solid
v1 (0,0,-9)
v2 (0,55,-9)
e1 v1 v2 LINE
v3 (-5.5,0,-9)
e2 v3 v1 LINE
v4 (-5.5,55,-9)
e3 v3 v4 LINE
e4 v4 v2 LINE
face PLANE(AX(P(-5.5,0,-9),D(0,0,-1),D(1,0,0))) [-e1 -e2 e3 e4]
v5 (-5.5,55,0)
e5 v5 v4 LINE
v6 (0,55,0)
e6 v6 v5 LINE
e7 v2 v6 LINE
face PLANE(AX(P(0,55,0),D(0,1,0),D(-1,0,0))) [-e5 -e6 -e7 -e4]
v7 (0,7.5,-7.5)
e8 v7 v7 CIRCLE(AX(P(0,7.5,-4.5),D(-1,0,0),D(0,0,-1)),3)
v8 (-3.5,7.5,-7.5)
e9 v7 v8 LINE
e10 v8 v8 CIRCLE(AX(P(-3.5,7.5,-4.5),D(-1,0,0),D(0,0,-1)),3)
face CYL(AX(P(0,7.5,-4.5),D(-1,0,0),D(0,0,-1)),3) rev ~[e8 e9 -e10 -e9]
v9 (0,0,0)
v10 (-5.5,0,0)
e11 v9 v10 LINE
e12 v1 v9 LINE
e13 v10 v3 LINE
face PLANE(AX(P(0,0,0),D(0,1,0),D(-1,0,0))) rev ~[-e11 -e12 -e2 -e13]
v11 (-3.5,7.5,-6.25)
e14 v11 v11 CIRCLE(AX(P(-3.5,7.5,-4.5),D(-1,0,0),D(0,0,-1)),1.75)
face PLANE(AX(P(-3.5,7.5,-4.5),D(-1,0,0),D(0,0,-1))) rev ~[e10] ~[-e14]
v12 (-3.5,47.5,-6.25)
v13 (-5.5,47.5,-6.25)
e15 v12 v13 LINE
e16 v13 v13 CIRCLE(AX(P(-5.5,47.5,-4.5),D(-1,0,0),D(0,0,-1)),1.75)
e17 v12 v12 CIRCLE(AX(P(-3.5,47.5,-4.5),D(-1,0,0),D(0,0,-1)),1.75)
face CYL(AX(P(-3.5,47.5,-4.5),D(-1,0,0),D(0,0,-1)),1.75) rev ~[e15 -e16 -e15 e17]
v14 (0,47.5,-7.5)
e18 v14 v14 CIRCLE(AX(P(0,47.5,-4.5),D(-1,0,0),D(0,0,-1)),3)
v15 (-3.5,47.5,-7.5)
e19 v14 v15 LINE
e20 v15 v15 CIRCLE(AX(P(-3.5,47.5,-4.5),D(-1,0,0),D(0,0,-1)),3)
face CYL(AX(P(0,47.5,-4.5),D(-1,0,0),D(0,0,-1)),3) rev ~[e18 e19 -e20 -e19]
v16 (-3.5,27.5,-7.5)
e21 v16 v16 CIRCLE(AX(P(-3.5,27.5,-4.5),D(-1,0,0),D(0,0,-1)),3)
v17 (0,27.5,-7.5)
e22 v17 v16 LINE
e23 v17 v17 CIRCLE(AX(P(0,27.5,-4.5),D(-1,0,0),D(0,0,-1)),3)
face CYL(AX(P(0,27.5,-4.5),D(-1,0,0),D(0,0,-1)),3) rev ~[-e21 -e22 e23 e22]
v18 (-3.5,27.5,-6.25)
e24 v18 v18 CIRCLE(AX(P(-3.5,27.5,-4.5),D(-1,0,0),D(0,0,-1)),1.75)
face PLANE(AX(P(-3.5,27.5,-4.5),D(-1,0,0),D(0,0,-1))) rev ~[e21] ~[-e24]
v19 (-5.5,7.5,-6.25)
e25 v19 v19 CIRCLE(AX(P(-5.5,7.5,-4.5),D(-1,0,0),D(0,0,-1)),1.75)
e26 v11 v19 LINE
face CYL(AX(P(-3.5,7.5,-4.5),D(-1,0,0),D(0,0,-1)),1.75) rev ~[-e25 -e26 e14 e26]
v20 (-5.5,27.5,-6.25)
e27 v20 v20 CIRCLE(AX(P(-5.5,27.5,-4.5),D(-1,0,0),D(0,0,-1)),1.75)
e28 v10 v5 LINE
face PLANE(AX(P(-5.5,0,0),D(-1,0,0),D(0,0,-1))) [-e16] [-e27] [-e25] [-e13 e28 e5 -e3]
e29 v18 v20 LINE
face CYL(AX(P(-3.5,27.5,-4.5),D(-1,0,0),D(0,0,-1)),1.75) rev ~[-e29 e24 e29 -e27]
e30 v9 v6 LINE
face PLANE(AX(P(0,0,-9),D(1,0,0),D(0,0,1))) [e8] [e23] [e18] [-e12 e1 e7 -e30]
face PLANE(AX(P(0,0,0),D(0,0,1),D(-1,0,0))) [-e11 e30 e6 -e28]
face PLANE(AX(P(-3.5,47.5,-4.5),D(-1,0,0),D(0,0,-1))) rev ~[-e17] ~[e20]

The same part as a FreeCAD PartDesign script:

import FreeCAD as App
import Part
import Sketcher


def add_polygon(sketch, points):
    """Adds a closed chain of lines whose ends are joined by coincident constraints."""
    first, n = sketch.GeometryCount, len(points)
    for a, b in zip(points, points[1:] + points[:1]):
        sketch.addGeometry(Part.LineSegment(App.Vector(*a, 0), App.Vector(*b, 0)), False)
    for i in range(n):
        sketch.addConstraint(Sketcher.Constraint("Coincident", first + i, 2, first + (i + 1) % n, 1))

doc = App.newDocument("Part")
body = doc.addObject("PartDesign::Body", "Body")

# Sketch on XZ plane
sketch1 = body.newObject("Sketcher::SketchObject", "Sketch")
sketch1.AttachmentSupport = (doc.getObject("XZ_Plane"), [""])
sketch1.MapMode = "FlatFace"
add_polygon(sketch1, [(-6, 0), (0, 0), (0, -9), (-6, -9)])  # lines 0-3
sketch1.addConstraint(Sketcher.Constraint("Horizontal", 0))
sketch1.addConstraint(Sketcher.Constraint("Vertical", 1))
sketch1.addConstraint(Sketcher.Constraint("Horizontal", 2))
sketch1.addConstraint(Sketcher.Constraint("Vertical", 3))
sketch1.addConstraint(Sketcher.Constraint("Coincident", 0, 2, -1, 1))
sketch1.addConstraint(Sketcher.Constraint("DistanceY", 1, 2, 1, 1, 9.0))
sketch1.addConstraint(Sketcher.Constraint("DistanceX", 0, 1, 0, 2, 5.5))
pad1 = body.newObject("PartDesign::Pad", "Pad")
pad1.Profile = sketch1
pad1.Length = 55
pad1.Reversed = True

# Sketch on YZ plane
sketch2 = body.newObject("Sketcher::SketchObject", "Sketch001")
sketch2.AttachmentSupport = (doc.getObject("YZ_Plane"), [""])
sketch2.MapMode = "FlatFace"
sketch2.addGeometry(Part.Circle(App.Vector(27.5, -4.5, 0), App.Vector(0, 0, 1), 1.8), False)
sketch2.addGeometry(Part.Circle(App.Vector(47.5, -4.5, 0), App.Vector(0, 0, 1), 1.8), False)
sketch2.addGeometry(Part.Circle(App.Vector(7.5, -4.5, 0), App.Vector(0, 0, 1), 1.8), False)
sketch2.addConstraint(Sketcher.Constraint("Equal", 0, 1))
sketch2.addConstraint(Sketcher.Constraint("Equal", 1, 2))
sketch2.addConstraint(Sketcher.Constraint("Horizontal", 0, 3, 1, 3))
sketch2.addConstraint(Sketcher.Constraint("Horizontal", 1, 3, 2, 3))
sketch2.addConstraint(Sketcher.Constraint("Diameter", 0, 3.5))
sketch2.addConstraint(Sketcher.Constraint("DistanceX", 0, 3, 1, 3, 20.0))
sketch2.addConstraint(Sketcher.Constraint("DistanceX", 2, 3, 0, 3, 20.0))
sketch2.addConstraint(Sketcher.Constraint("DistanceX", -1, 1, 0, 3, 27.5))
sketch2.addConstraint(Sketcher.Constraint("DistanceY", 0, 3, -1, 1, 4.5))
doc.recompute()
hole = body.newObject("PartDesign::Hole", "Hole")
hole.Profile = sketch2
hole.ThreadType = "None"
hole.Diameter = 3.5
hole.DepthType = "Dimension"
hole.Depth = 8
hole.DrillPoint = "Angled"
hole.DrillPointAngle = 118
hole.HoleCutType = "Counterbore"
hole.HoleCutDiameter = 6
hole.HoleCutDepth = 3.5

doc.recompute()
